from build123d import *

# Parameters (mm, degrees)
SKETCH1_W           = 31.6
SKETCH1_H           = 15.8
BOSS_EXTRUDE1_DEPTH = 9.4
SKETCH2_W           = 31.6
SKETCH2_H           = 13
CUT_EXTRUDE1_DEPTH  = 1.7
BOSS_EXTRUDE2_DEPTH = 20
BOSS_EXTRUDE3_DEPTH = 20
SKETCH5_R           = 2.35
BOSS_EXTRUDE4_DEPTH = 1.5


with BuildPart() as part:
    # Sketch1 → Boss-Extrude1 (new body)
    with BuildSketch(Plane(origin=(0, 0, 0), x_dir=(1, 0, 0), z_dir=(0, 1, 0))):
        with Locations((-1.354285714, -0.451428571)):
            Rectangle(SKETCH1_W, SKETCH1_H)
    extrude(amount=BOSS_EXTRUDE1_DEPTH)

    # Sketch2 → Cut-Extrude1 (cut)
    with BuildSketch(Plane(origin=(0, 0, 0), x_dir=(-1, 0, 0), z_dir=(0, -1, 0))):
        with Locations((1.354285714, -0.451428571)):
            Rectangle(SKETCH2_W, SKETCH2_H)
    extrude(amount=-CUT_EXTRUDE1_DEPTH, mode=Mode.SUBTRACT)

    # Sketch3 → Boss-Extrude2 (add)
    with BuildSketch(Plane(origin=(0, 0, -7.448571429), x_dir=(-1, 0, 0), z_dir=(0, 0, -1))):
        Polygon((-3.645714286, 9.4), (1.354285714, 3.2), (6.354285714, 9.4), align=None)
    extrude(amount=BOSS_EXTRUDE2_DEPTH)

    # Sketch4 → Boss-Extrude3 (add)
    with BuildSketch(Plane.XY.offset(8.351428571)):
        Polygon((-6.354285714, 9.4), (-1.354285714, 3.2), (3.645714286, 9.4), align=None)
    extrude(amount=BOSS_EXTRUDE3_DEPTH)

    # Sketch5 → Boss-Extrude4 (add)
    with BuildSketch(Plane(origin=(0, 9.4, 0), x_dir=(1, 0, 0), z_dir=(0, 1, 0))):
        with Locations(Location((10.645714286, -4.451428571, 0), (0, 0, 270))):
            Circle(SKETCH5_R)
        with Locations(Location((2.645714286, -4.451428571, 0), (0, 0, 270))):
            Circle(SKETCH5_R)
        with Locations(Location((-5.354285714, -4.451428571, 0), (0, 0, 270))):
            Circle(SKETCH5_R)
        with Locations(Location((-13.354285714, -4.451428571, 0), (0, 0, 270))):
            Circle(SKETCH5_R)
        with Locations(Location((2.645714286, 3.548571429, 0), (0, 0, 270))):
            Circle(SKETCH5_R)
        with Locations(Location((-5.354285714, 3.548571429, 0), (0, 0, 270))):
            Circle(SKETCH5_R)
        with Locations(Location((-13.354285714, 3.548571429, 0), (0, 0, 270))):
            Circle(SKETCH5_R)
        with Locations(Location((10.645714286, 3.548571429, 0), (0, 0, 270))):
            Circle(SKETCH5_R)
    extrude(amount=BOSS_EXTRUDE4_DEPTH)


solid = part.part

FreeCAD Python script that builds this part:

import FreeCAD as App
import Part
import Sketcher
from FreeCAD import Vector
Q = App.Units.Quantity


def add_polygon(sketch, points):
    """Adds a closed chain of lines whose ends are joined by coincident constraints."""
    first, n = sketch.GeometryCount, len(points)
    for a, b in zip(points, points[1:] + points[:1]):
        sketch.addGeometry(Part.LineSegment(App.Vector(*a, 0), App.Vector(*b, 0)), False)
    for i in range(n):
        sketch.addConstraint(Sketcher.Constraint("Coincident", first + i, 2, first + (i + 1) % n, 1))

doc = App.newDocument("Part")
params = doc.addObject("Spreadsheet::Sheet", "Params")
for row, (alias, value) in enumerate([
    ("sketch1_width", "31.6 mm"),
    ("sketch1_height", "15.8 mm"),
    ("pad1_length", "9.4 mm"),
    ("sketch2_height", "13 mm"),
    ("sketch2_width", "31.6 mm"),
    ("pocket1_length", "1.7 mm"),
    ("sketch3_width", "10 mm"),
    ("pad2_length", "20 mm"),
    ("sketch4_width", "10 mm"),
    ("pad3_length", "20 mm"),
    ("sketch5_diameter", "4.7 mm"),
    ("pad4_length", "1.5 mm"),
], start=1):
    params.set(f"A{row}", alias)
    params.set(f"B{row}", "=" + value)
    params.setAlias(f"B{row}", alias)

body = doc.addObject("PartDesign::Body", "Body")

sketch1 = doc.addObject("Sketcher::SketchObject", "Sketch")
body.addObject(sketch1)
sketch1.AttachmentSupport = (doc.XZ_Plane, [""])
sketch1.MapMode = "FlatFace"
add_polygon(sketch1, [(-17.154286, -7.448571), (-17.154286, 8.351429), (14.445714, 8.351429), (14.445714, -7.448571)])
sketch1.addConstraint([
    Sketcher.Constraint("Vertical", 0),
    Sketcher.Constraint("Horizontal", 1),
    Sketcher.Constraint("Vertical", 2),
    Sketcher.Constraint("Horizontal", 3),
    Sketcher.Constraint("DistanceX", 1, 1, 1, 2, Q("31.6 mm")),
    Sketcher.Constraint("DistanceY", 0, 1, 0, 2, Q("15.8 mm")),
    Sketcher.Constraint("DistanceY", -1, 1, 0, 2, Q("8.351429 mm")),
    Sketcher.Constraint("DistanceX", 0, 2, -1, 1, Q("17.154286 mm")),
])
sketch1.setExpression("Constraints[8]", "Params.sketch1_width")
sketch1.setExpression("Constraints[9]", "Params.sketch1_height")
pad1 = doc.addObject("PartDesign::Pad", "Pad")
body.addObject(pad1)
pad1.Profile = sketch1
pad1.setExpression("Length", "Params.pad1_length")
pad1.Reversed = True

sketch2 = doc.addObject("Sketcher::SketchObject", "Sketch001")
body.addObject(sketch2)
sketch2.AttachmentSupport = (doc.XZ_Plane, [""])
sketch2.MapMode = "FlatFace"
add_polygon(sketch2, [(14.445714, -6.048571), (14.445714, 6.951429), (-17.154286, 6.951429), (-17.154286, -6.048571)])
sketch2.addConstraint([
    Sketcher.Constraint("Vertical", 0),
    Sketcher.Constraint("Horizontal", 1),
    Sketcher.Constraint("Vertical", 2),
    Sketcher.Constraint("Horizontal", 3),
    Sketcher.Constraint("DistanceY", 0, 1, 0, 2, Q("13 mm")),
    Sketcher.Constraint("DistanceX", 1, 2, 1, 1, Q("31.6 mm")),
    Sketcher.Constraint("DistanceY", -1, 1, 0, 2, Q("6.951429 mm")),
    Sketcher.Constraint("DistanceX", -1, 1, 0, 2, Q("14.445714 mm")),
])
sketch2.setExpression("Constraints[8]", "Params.sketch2_height")
sketch2.setExpression("Constraints[9]", "Params.sketch2_width")
pocket1 = doc.addObject("PartDesign::Pocket", "Pocket")
body.addObject(pocket1)
pocket1.Profile = sketch2
pocket1.setExpression("Length", "Params.pocket1_length")

sketch3 = doc.addObject("Sketcher::SketchObject", "Sketch002")
body.addObject(sketch3)
sketch3.AttachmentSupport = (doc.XY_Plane, [""])
sketch3.MapMode = "FlatFace"
sketch3.AttachmentOffset = App.Placement(Vector(0, 0, -7.448571), App.Rotation())
add_polygon(sketch3, [(3.645714, 9.4), (-1.354286, 3.2), (-6.354286, 9.4)])
sketch3.addConstraint([
    Sketcher.Constraint("Horizontal", 2),
    Sketcher.Constraint("Equal", 0, 1),
    Sketcher.Constraint("DistanceX", 2, 1, 2, 2, Q("10 mm")),
    Sketcher.Constraint("DistanceY", -1, 1, 0, 2, Q("3.2 mm")),
    Sketcher.Constraint("DistanceY", -1, 1, 1, 2, Q("9.4 mm")),
    Sketcher.Constraint("DistanceX", 0, 2, -1, 1, Q("1.354286 mm")),
])
sketch3.setExpression("Constraints[5]", "Params.sketch3_width")
pad2 = doc.addObject("PartDesign::Pad", "Pad001")
body.addObject(pad2)
pad2.Profile = sketch3
pad2.setExpression("Length", "Params.pad2_length")
pad2.Reversed = True

sketch4 = doc.addObject("Sketcher::SketchObject", "Sketch003")
body.addObject(sketch4)
sketch4.AttachmentSupport = (doc.XY_Plane, [""])
sketch4.MapMode = "FlatFace"
sketch4.AttachmentOffset = App.Placement(Vector(0, 0, 8.351429), App.Rotation())
add_polygon(sketch4, [(-6.354286, 9.4), (-1.354286, 3.2), (3.645714, 9.4)])
sketch4.addConstraint([
    Sketcher.Constraint("Horizontal", 2),
    Sketcher.Constraint("Equal", 0, 1),
    Sketcher.Constraint("DistanceX", 2, 2, 2, 1, Q("10 mm")),
    Sketcher.Constraint("DistanceY", -1, 1, 0, 2, Q("3.2 mm")),
    Sketcher.Constraint("DistanceY", -1, 1, 1, 2, Q("9.4 mm")),
    Sketcher.Constraint("DistanceX", 0, 2, -1, 1, Q("1.354286 mm")),
])
sketch4.setExpression("Constraints[5]", "Params.sketch4_width")
pad3 = doc.addObject("PartDesign::Pad", "Pad002")
body.addObject(pad3)
pad3.Profile = sketch4
pad3.setExpression("Length", "Params.pad3_length")

sketch5 = doc.addObject("Sketcher::SketchObject", "Sketch004")
body.addObject(sketch5)
sketch5.AttachmentSupport = (doc.XZ_Plane, [""])
sketch5.MapMode = "FlatFace"
sketch5.AttachmentOffset = App.Placement(Vector(0, 0, -9.4), App.Rotation())
sketch5.addGeometry([
    Part.Circle(Vector(10.645714, 4.451429, 0), Vector(0, 0, 1), 2.35),
    Part.Circle(Vector(2.645714, 4.451429, 0), Vector(0, 0, 1), 2.35),
    Part.Circle(Vector(-5.354286, 4.451429, 0), Vector(0, 0, 1), 2.35),
    Part.Circle(Vector(-13.354286, 4.451429, 0), Vector(0, 0, 1), 2.35),
    Part.Circle(Vector(2.645714, -3.548571, 0), Vector(0, 0, 1), 2.35),
    Part.Circle(Vector(-5.354286, -3.548571, 0), Vector(0, 0, 1), 2.35),
    Part.Circle(Vector(-13.354286, -3.548571, 0), Vector(0, 0, 1), 2.35),
    Part.Circle(Vector(10.645714, -3.548571, 0), Vector(0, 0, 1), 2.35),
], False)
sketch5.addConstraint([
    Sketcher.Constraint("Equal", 0, 1),
    Sketcher.Constraint("Equal", 1, 2),
    Sketcher.Constraint("Equal", 2, 3),
    Sketcher.Constraint("Equal", 3, 4),
    Sketcher.Constraint("Equal", 4, 5),
    Sketcher.Constraint("Equal", 5, 6),
    Sketcher.Constraint("Equal", 6, 7),
    Sketcher.Constraint("Horizontal", 0, 3, 1, 3),
    Sketcher.Constraint("Horizontal", 1, 3, 2, 3),
    Sketcher.Constraint("Horizontal", 2, 3, 3, 3),
    Sketcher.Constraint("Horizontal", 4, 3, 5, 3),
    Sketcher.Constraint("Horizontal", 5, 3, 6, 3),
    Sketcher.Constraint("Horizontal", 6, 3, 7, 3),
    Sketcher.Constraint("Vertical", 1, 3, 4, 3),
    Sketcher.Constraint("Vertical", 2, 3, 5, 3),
    Sketcher.Constraint("Vertical", 3, 3, 6, 3),
    Sketcher.Constraint("Vertical", 0, 3, 7, 3),
    Sketcher.Constraint("Diameter", 0, Q("4.7 mm")),
    Sketcher.Constraint("DistanceX", 1, 3, 0, 3, Q("8 mm")),
    Sketcher.Constraint("DistanceX", 2, 3, 1, 3, Q("8 mm")),
    Sketcher.Constraint("DistanceX", 3, 3, 2, 3, Q("8 mm")),
    Sketcher.Constraint("DistanceY", 4, 3, 1, 3, Q("8 mm")),
    Sketcher.Constraint("DistanceY", -1, 1, 0, 3, Q("4.451429 mm")),
    Sketcher.Constraint("DistanceX", -1, 1, 0, 3, Q("10.645714 mm")),
])
sketch5.setExpression("Constraints[17]", "Params.sketch5_diameter")
pad4 = doc.addObject("PartDesign::Pad", "Pad003")
body.addObject(pad4)
pad4.Profile = sketch5
pad4.setExpression("Length", "Params.pad4_length")
pad4.Reversed = True

doc.recompute()
